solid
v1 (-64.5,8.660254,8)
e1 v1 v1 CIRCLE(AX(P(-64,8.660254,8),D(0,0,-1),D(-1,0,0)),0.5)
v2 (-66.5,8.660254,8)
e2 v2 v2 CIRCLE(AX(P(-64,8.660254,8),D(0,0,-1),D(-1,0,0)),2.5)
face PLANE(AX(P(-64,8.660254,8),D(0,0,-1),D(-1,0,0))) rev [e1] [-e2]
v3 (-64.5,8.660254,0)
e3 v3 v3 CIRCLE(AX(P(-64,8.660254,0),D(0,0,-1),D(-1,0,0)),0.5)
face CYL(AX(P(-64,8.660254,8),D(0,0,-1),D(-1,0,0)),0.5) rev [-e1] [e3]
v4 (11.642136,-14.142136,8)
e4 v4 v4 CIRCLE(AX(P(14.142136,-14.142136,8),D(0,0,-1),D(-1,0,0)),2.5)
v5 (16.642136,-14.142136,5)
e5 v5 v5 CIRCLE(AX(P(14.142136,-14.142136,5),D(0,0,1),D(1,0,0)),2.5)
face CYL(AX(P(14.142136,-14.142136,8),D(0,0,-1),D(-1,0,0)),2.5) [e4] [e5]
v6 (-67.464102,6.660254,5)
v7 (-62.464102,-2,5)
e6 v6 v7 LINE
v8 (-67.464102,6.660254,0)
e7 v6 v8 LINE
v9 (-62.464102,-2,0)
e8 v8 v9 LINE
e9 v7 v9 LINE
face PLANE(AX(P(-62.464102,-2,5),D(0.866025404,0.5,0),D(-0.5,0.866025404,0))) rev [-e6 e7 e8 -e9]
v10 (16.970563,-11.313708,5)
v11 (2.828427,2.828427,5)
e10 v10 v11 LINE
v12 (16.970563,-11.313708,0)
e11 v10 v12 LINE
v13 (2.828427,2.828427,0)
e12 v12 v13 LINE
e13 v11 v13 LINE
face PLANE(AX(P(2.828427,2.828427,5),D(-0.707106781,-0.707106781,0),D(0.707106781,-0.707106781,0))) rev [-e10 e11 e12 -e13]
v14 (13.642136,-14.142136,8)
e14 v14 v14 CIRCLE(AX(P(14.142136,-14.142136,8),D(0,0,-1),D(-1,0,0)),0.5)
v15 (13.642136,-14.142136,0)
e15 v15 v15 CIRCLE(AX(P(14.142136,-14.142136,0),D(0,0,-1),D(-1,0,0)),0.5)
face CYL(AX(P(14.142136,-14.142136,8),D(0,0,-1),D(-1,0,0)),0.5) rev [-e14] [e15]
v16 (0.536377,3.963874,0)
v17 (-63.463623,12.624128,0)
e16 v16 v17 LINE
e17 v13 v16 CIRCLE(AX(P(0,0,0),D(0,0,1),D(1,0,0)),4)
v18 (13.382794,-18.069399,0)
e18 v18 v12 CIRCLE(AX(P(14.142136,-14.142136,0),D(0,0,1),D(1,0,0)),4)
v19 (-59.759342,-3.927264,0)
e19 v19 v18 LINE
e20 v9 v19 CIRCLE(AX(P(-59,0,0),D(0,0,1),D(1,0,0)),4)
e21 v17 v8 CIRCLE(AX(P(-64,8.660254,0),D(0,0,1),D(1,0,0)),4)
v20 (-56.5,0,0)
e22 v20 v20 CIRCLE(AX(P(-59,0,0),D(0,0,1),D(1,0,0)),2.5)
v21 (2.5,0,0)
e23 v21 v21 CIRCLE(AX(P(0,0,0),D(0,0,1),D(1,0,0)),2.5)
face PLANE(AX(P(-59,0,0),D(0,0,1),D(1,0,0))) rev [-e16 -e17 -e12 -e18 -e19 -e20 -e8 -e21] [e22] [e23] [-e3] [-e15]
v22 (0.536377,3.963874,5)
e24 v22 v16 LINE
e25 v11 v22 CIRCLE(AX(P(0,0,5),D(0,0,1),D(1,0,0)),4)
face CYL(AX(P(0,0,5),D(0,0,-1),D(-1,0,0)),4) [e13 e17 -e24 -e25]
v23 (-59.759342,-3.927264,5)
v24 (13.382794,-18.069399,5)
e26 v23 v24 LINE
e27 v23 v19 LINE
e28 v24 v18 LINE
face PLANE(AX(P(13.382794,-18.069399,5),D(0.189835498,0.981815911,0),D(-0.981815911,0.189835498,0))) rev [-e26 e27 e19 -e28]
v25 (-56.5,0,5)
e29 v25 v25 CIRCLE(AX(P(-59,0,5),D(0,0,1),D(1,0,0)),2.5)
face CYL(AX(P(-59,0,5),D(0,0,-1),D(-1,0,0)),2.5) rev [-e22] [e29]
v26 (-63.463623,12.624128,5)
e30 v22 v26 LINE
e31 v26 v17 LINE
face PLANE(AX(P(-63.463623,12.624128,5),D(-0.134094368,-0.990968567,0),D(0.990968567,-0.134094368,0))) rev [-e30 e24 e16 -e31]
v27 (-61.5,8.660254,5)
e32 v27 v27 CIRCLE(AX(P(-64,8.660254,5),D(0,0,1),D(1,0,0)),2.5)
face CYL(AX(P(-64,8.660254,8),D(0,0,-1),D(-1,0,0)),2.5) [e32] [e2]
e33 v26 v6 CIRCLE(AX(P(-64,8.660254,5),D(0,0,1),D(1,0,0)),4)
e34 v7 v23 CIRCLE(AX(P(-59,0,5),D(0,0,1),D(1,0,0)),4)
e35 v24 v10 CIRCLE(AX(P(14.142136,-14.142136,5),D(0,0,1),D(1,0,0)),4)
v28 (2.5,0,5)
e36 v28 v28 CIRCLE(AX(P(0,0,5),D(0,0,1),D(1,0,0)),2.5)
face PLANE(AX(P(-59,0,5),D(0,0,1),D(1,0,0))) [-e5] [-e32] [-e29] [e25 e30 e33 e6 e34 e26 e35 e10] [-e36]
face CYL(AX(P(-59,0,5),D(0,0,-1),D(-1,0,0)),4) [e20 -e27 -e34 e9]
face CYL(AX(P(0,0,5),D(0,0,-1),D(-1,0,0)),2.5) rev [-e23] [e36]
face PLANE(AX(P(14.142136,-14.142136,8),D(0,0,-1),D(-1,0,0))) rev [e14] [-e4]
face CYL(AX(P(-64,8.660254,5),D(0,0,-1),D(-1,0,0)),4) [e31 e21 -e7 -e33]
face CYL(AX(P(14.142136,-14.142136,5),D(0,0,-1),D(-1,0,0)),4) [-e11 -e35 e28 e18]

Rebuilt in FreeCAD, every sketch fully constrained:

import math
import FreeCAD as App
import Part
import Sketcher

V = App.Vector
Q = App.Units.Quantity

doc = App.newDocument("Part")
body = doc.addObject("PartDesign::Body", "Body")

# Sketch on XY plane
sketch1 = doc.addObject("Sketcher::SketchObject", "Sketch")
body.addObject(sketch1)
sketch1.AttachmentSupport = (doc.XY_Plane, [""])
sketch1.MapMode = "FlatFace"
sketch1.addGeometry(Part.LineSegment(V(0.536377, 3.963874, 0), V(-63.463623, 12.624128, 0)), False)
sketch1.addGeometry(Part.ArcOfCircle(Part.Circle(V(-64, 8.660254, 0), V(0, 0, 1), 4), math.radians(82.293745), math.radians(210)), False)
sketch1.addGeometry(Part.LineSegment(V(-67.464102, 6.660254, 0), V(-62.464102, -2, 0)), False)
sketch1.addGeometry(Part.ArcOfCircle(Part.Circle(V(-59, 0, 0), V(0, 0, 1), 4), math.radians(-150), math.radians(-100.943184)), False)
sketch1.addGeometry(Part.LineSegment(V(-59.759342, -3.927264, 0), V(13.382794, -18.069399, 0)), False)
sketch1.addGeometry(Part.ArcOfCircle(Part.Circle(V(14.142136, -14.142136, 0), V(0, 0, 1), 4), math.radians(-100.943184), math.radians(45)), False)
sketch1.addGeometry(Part.LineSegment(V(16.970563, -11.313708, 0), V(2.828427, 2.828427, 0)), False)
sketch1.addGeometry(Part.ArcOfCircle(Part.Circle(V(0, 0, 0), V(0, 0, 1), 4), math.radians(45), math.radians(82.293745)), False)
sketch1.addGeometry(Part.Circle(V(14.142136, -14.142136, 0), V(0, 0, 1), 2.5), False)
sketch1.addGeometry(Part.Circle(V(0, 0, 0), V(0, 0, 1), 2.5), False)
sketch1.addGeometry(Part.Circle(V(-59, 0, 0), V(0, 0, 1), 2.5), False)
sketch1.addGeometry(Part.Circle(V(-64, 8.660254, 0), V(0, 0, 1), 2.5), False)
sketch1.addConstraint(Sketcher.Constraint("Tangent", 0, 2, 1, 1))
sketch1.addConstraint(Sketcher.Constraint("Tangent", 1, 2, 2, 1))
sketch1.addConstraint(Sketcher.Constraint("Tangent", 2, 2, 3, 1))
sketch1.addConstraint(Sketcher.Constraint("Tangent", 3, 2, 4, 1))
sketch1.addConstraint(Sketcher.Constraint("Tangent", 4, 2, 5, 1))
sketch1.addConstraint(Sketcher.Constraint("Tangent", 5, 2, 6, 1))
sketch1.addConstraint(Sketcher.Constraint("Tangent", 6, 2, 7, 1))
sketch1.addConstraint(Sketcher.Constraint("Tangent", 7, 2, 0, 1))
sketch1.addConstraint(Sketcher.Constraint("Coincident", 7, 3, -1, 1))
sketch1.addConstraint(Sketcher.Constraint("Coincident", 9, 3, -1, 1))
sketch1.addConstraint(Sketcher.Constraint("Coincident", 8, 3, 5, 3))
sketch1.addConstraint(Sketcher.Constraint("Coincident", 10, 3, 3, 3))
sketch1.addConstraint(Sketcher.Constraint("Coincident", 11, 3, 1, 3))
sketch1.addConstraint(Sketcher.Constraint("Equal", 1, 3))
sketch1.addConstraint(Sketcher.Constraint("Equal", 3, 5))
sketch1.addConstraint(Sketcher.Constraint("Equal", 5, 7))
sketch1.addConstraint(Sketcher.Constraint("Equal", 8, 9))
sketch1.addConstraint(Sketcher.Constraint("Equal", 9, 10))
sketch1.addConstraint(Sketcher.Constraint("Equal", 10, 11))
sketch1.addConstraint(Sketcher.Constraint("PointOnObject", 3, 3, -1))
sketch1.addConstraint(Sketcher.Constraint("Diameter", 8, 5.0))
sketch1.addConstraint(Sketcher.Constraint("Radius", 1, 4.0))
sketch1.addConstraint(Sketcher.Constraint("Angle", 2, Q("-60 deg")))
sketch1.addConstraint(Sketcher.Constraint("Angle", 6, Q("135 deg")))
sketch1.addConstraint(Sketcher.Constraint("Distance", 2, 10.0))
sketch1.addConstraint(Sketcher.Constraint("Distance", 6, 20.0))
sketch1.addConstraint(Sketcher.Constraint("DistanceX", 1, 3, -1, 1, 64.0))
pad1 = doc.addObject("PartDesign::Pad", "Pad")
body.addObject(pad1)
pad1.Profile = sketch1
pad1.Length = 5

# Sketch on XY plane
sketch2 = doc.addObject("Sketcher::SketchObject", "Sketch001")
body.addObject(sketch2)
sketch2.AttachmentSupport = (doc.XY_Plane, [""])
sketch2.MapMode = "FlatFace"
sketch2.addGeometry(Part.Circle(V(-64, 8.660254, 0), V(0, 0, 1), 2.5), False)
sketch2.addGeometry(Part.Circle(V(-64, 8.660254, 0), V(0, 0, 1), 0.5), False)
sketch2.addGeometry(Part.Circle(V(14.142136, -14.142136, 0), V(0, 0, 1), 2.5), False)
sketch2.addGeometry(Part.Circle(V(14.142136, -14.142136, 0), V(0, 0, 1), 0.5), False)
sketch2.addConstraint(Sketcher.Constraint("Coincident", 1, 3, 0, 3))
sketch2.addConstraint(Sketcher.Constraint("Coincident", 3, 3, 2, 3))
sketch2.addConstraint(Sketcher.Constraint("Equal", 0, 2))
sketch2.addConstraint(Sketcher.Constraint("Equal", 1, 3))
sketch2.addConstraint(Sketcher.Constraint("Diameter", 0, 5.0))
sketch2.addConstraint(Sketcher.Constraint("Diameter", 1, 1.0))
sketch2.addConstraint(Sketcher.Constraint("DistanceX", 0, 3, -1, 1, 64.0))
sketch2.addConstraint(Sketcher.Constraint("DistanceY", 2, 3, 0, 3, 22.80239))
sketch2.addConstraint(Sketcher.Constraint("DistanceY", -1, 1, 0, 3, 8.660254))
sketch2.addConstraint(Sketcher.Constraint("DistanceX", -1, 1, 2, 3, 14.142136))
pad2 = doc.addObject("PartDesign::Pad", "Pad001")
body.addObject(pad2)
pad2.Profile = sketch2
pad2.Length = 8

doc.recompute()
